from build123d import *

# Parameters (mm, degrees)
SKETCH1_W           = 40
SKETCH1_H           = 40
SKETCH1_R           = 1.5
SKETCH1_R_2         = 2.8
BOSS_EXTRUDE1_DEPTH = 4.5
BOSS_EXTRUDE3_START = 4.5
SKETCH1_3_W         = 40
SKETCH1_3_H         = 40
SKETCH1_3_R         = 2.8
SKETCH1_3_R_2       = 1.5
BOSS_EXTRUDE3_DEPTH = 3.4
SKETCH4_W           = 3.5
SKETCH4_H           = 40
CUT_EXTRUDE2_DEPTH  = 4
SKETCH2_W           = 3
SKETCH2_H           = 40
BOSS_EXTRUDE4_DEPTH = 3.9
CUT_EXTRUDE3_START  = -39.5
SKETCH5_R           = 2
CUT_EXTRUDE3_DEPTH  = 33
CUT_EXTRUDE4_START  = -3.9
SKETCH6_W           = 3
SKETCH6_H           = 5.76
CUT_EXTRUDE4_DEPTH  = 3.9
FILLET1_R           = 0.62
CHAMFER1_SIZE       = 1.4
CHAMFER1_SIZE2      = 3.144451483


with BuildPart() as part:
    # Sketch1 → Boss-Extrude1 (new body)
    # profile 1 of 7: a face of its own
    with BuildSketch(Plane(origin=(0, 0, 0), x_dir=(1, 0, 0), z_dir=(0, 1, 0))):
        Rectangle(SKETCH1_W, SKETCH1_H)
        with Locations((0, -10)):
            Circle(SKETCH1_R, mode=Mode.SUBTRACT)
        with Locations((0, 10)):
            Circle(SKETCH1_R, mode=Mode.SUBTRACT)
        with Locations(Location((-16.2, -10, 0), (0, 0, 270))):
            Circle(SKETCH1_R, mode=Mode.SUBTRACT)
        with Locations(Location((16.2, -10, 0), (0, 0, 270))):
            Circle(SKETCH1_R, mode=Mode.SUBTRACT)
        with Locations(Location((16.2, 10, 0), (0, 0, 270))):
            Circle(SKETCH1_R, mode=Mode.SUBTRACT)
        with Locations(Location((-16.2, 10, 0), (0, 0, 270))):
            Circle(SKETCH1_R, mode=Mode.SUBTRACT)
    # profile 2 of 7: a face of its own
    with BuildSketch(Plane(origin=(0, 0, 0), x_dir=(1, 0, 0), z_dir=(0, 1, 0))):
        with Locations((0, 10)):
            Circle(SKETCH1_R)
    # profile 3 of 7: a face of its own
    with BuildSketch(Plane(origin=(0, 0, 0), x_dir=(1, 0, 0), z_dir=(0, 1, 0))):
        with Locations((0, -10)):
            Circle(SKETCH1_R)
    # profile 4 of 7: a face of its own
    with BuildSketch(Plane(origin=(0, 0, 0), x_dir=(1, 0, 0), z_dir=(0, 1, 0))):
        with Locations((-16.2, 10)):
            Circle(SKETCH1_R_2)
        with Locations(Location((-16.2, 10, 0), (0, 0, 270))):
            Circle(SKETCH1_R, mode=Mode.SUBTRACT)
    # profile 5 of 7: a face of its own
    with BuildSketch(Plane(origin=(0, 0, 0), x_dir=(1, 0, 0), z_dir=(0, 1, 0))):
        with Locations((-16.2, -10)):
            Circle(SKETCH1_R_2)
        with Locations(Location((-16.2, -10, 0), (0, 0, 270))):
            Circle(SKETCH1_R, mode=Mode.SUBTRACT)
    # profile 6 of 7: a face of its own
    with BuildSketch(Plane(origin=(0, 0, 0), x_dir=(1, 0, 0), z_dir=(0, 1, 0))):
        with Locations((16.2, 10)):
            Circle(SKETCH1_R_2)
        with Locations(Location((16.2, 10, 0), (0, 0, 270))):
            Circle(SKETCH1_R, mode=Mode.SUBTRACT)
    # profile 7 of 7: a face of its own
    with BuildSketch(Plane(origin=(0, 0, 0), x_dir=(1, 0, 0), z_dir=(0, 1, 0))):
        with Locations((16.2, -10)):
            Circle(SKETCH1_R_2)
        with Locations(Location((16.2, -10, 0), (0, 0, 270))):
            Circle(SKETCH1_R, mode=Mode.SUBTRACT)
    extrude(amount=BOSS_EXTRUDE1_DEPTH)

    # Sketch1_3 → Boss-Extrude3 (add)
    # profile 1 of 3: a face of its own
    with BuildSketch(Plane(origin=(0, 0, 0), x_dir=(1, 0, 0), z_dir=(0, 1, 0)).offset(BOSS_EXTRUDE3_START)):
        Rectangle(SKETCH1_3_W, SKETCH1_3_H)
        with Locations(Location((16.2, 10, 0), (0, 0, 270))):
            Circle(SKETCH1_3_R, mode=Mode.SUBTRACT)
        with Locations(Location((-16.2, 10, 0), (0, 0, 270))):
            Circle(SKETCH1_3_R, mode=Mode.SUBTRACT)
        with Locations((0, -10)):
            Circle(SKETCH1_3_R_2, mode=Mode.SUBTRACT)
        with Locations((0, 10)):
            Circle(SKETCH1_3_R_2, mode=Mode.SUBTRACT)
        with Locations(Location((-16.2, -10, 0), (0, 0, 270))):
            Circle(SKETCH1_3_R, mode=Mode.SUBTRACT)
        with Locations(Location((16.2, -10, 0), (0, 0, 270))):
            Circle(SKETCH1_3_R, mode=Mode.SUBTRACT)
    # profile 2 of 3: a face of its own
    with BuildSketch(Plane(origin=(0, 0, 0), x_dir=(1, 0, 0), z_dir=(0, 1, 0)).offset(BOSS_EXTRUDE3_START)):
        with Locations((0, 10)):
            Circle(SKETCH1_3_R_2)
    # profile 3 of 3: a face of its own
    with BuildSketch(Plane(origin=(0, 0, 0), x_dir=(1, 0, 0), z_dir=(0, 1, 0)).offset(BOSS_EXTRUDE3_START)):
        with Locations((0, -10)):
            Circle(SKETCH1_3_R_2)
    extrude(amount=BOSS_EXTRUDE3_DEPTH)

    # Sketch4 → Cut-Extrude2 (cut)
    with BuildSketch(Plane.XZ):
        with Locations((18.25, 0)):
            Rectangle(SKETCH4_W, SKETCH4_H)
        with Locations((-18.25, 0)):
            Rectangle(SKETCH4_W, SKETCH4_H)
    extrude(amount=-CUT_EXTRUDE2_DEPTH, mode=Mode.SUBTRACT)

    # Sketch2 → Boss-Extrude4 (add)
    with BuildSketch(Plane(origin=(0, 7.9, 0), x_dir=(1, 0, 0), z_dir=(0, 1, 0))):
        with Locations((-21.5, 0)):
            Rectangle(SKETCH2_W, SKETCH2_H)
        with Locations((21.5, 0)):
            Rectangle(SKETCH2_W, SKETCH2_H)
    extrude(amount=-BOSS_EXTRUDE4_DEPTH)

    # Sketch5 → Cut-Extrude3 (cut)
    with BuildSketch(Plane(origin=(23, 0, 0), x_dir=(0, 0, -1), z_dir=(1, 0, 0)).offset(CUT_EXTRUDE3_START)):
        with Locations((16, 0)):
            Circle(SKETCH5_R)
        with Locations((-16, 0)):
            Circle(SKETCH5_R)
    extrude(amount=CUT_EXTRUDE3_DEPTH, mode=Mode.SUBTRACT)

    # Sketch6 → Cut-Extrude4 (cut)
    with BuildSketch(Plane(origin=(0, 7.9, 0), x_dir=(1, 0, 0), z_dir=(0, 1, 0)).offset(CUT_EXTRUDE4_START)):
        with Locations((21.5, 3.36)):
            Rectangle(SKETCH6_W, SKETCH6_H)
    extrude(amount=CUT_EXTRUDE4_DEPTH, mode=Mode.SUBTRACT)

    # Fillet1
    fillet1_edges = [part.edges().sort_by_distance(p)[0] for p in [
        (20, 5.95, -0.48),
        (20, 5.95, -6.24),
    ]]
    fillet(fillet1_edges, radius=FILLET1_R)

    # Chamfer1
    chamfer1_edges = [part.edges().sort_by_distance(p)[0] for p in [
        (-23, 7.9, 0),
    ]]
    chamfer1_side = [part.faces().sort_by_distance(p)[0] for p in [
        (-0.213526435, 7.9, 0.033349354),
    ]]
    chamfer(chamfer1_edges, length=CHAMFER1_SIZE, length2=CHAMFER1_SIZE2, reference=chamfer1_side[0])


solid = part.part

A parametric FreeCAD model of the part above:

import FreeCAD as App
import Part
import Sketcher

V = App.Vector
Q = App.Units.Quantity


def edges_at(feature, points):
    """Names of the edges that pass closest to the given points."""
    edges = feature.Shape.Edges
    near = lambda p: min(range(len(edges)), key=lambda i: edges[i].distToShape(Part.Vertex(*p))[0])
    return sorted({f"Edge{near(p) + 1}" for p in points})


def add_polygon(sketch, points):
    """Adds a closed chain of lines whose ends are joined by coincident constraints."""
    first, n = sketch.GeometryCount, len(points)
    for a, b in zip(points, points[1:] + points[:1]):
        sketch.addGeometry(Part.LineSegment(App.Vector(*a, 0), App.Vector(*b, 0)), False)
    for i in range(n):
        sketch.addConstraint(Sketcher.Constraint("Coincident", first + i, 2, first + (i + 1) % n, 1))

doc = App.newDocument("Part")
params = doc.addObject("Spreadsheet::Sheet", "Params")
for row, (alias, value) in enumerate([
    ("sketch1_diameter", "3 mm"),
    ("sketch1_width", "40 mm"),
    ("pad1_length", "4.5 mm"),
    ("sketch2_diameter", "5.6 mm"),
    ("sketch2_width", "40 mm"),
    ("pad2_length", "3.4 mm"),
    ("sketch3_height", "40 mm"),
    ("sketch3_width", "3.5 mm"),
    ("pocket1_length", "4 mm"),
    ("sketch4_width", "3 mm"),
    ("sketch4_height", "40 mm"),
    ("pad3_length", "3.9 mm"),
    ("sketch5_diameter", "4 mm"),
    ("pocket2_length", "33 mm"),
    ("sketch6_width", "3 mm"),
    ("sketch6_height", "5.76 mm"),
    ("pocket3_length", "3.9 mm"),
    ("fillet_radius", "0.62 mm"),
    ("chamfer_size", "1.4 mm"),
    ("chamfer_size2", "3.144451 mm"),
], start=1):
    params.set(f"A{row}", alias)
    params.set(f"B{row}", "=" + value)
    params.setAlias(f"B{row}", alias)

body = doc.addObject("PartDesign::Body", "Body")

# Sketch on XZ plane
sketch1 = body.newObject("Sketcher::SketchObject", "Sketch")
sketch1.AttachmentSupport = (doc.getObject("XZ_Plane"), [""])
sketch1.MapMode = "FlatFace"
add_polygon(sketch1, [(-20, -20), (-20, 20), (20, 20), (20, -20)])  # lines 0-3
sketch1.addGeometry(Part.Circle(V(-16.2, 10, 0), V(0, 0, 1), 1.5), False)  # 4
sketch1.addGeometry(Part.Circle(V(16.2, 10, 0), V(0, 0, 1), 1.5), False)  # 5
sketch1.addGeometry(Part.Circle(V(-16.2, -10, 0), V(0, 0, 1), 1.5), False)  # 6
sketch1.addGeometry(Part.Circle(V(16.2, -10, 0), V(0, 0, 1), 1.5), False)  # 7
sketch1.addConstraint([
    Sketcher.Constraint("Vertical", 0),
    Sketcher.Constraint("Horizontal", 1),
    Sketcher.Constraint("Vertical", 2),
    Sketcher.Constraint("Horizontal", 3),
    Sketcher.Constraint("Equal", 4, 5),
    Sketcher.Constraint("Equal", 5, 6),
    Sketcher.Constraint("Equal", 6, 7),
    Sketcher.Constraint("Symmetric", 5, 3, 6, 3, -1, 1),
    Sketcher.Constraint("Symmetric", 4, 3, 7, 3, -1, 1),
    Sketcher.Constraint("Symmetric", 0, 2, 2, 2, -1, 1),
    Sketcher.Constraint("Symmetric", 4, 3, 5, 3, -2),
    Sketcher.Constraint("Equal", 3, 0),
    Sketcher.Constraint("Diameter", 4, Q("3 mm")),
    Sketcher.Constraint("DistanceX", 1, 1, 1, 2, Q("40 mm")),
    Sketcher.Constraint("DistanceY", -1, 1, 4, 3, Q("10 mm")),
    Sketcher.Constraint("DistanceX", 4, 3, -1, 1, Q("16.2 mm")),
])
sketch1.setExpression("Constraints[16]", "Params.sketch1_diameter")
sketch1.setExpression("Constraints[17]", "Params.sketch1_width")
pad1 = body.newObject("PartDesign::Pad", "Pad")
pad1.Profile = sketch1
pad1.setExpression("Length", "Params.pad1_length")
pad1.Reversed = True

# Sketch on XZ plane
sketch2 = body.newObject("Sketcher::SketchObject", "Sketch001")
sketch2.AttachmentSupport = (doc.getObject("XZ_Plane"), [""])
sketch2.MapMode = "FlatFace"
sketch2.AttachmentOffset = App.Placement(V(0, 0, -4.5), App.Rotation())
add_polygon(sketch2, [(-20, -20), (-20, 20), (20, 20), (20, -20)])  # lines 0-3
sketch2.addGeometry(Part.Circle(V(-16.2, 10, 0), V(0, 0, 1), 2.8), False)  # 4
sketch2.addGeometry(Part.Circle(V(16.2, 10, 0), V(0, 0, 1), 2.8), False)  # 5
sketch2.addGeometry(Part.Circle(V(-16.2, -10, 0), V(0, 0, 1), 2.8), False)  # 6
sketch2.addGeometry(Part.Circle(V(16.2, -10, 0), V(0, 0, 1), 2.8), False)  # 7
sketch2.addConstraint([
    Sketcher.Constraint("Vertical", 0),
    Sketcher.Constraint("Horizontal", 1),
    Sketcher.Constraint("Vertical", 2),
    Sketcher.Constraint("Horizontal", 3),
    Sketcher.Constraint("Equal", 4, 5),
    Sketcher.Constraint("Equal", 5, 6),
    Sketcher.Constraint("Equal", 6, 7),
    Sketcher.Constraint("Symmetric", 5, 3, 6, 3, -1, 1),
    Sketcher.Constraint("Symmetric", 4, 3, 7, 3, -1, 1),
    Sketcher.Constraint("Symmetric", 0, 2, 2, 2, -1, 1),
    Sketcher.Constraint("Symmetric", 4, 3, 5, 3, -2),
    Sketcher.Constraint("Equal", 3, 0),
    Sketcher.Constraint("Diameter", 4, Q("5.6 mm")),
    Sketcher.Constraint("DistanceX", 1, 1, 1, 2, Q("40 mm")),
    Sketcher.Constraint("DistanceY", -1, 1, 4, 3, Q("10 mm")),
    Sketcher.Constraint("DistanceX", 4, 3, -1, 1, Q("16.2 mm")),
])
sketch2.setExpression("Constraints[16]", "Params.sketch2_diameter")
sketch2.setExpression("Constraints[17]", "Params.sketch2_width")
pad2 = body.newObject("PartDesign::Pad", "Pad001")
pad2.Profile = sketch2
pad2.setExpression("Length", "Params.pad2_length")
pad2.Reversed = True

# Sketch on XZ plane
sketch3 = body.newObject("Sketcher::SketchObject", "Sketch002")
sketch3.AttachmentSupport = (doc.getObject("XZ_Plane"), [""])
sketch3.MapMode = "FlatFace"
add_polygon(sketch3, [(16.5, 20), (16.5, -20), (20, -20), (20, 20)])  # lines 0-3
add_polygon(sketch3, [(-20, 20), (-20, -20), (-16.5, -20), (-16.5, 20)])  # lines 4-7
sketch3.addConstraint([
    Sketcher.Constraint("Vertical", 0),
    Sketcher.Constraint("Horizontal", 1),
    Sketcher.Constraint("Vertical", 2),
    Sketcher.Constraint("Horizontal", 3),
    Sketcher.Constraint("Vertical", 4),
    Sketcher.Constraint("Horizontal", 5),
    Sketcher.Constraint("Vertical", 6),
    Sketcher.Constraint("Horizontal", 7),
    Sketcher.Constraint("Symmetric", 2, 2, 4, 2, -1, 1),
    Sketcher.Constraint("Symmetric", 0, 2, 6, 2, -1, 1),
    Sketcher.Constraint("Horizontal", 1, 2, 4, 2),
    Sketcher.Constraint("DistanceY", 0, 2, 0, 1, Q("40 mm")),
    Sketcher.Constraint("DistanceX", 1, 1, 1, 2, Q("3.5 mm")),
    Sketcher.Constraint("DistanceX", -1, 1, 1, 2, Q("20 mm")),
])
sketch3.setExpression("Constraints[19]", "Params.sketch3_height")
sketch3.setExpression("Constraints[20]", "Params.sketch3_width")
pocket1 = body.newObject("PartDesign::Pocket", "Pocket")
pocket1.Profile = sketch3
pocket1.setExpression("Length", "Params.pocket1_length")

# Sketch on XZ plane
sketch4 = body.newObject("Sketcher::SketchObject", "Sketch003")
sketch4.AttachmentSupport = (doc.getObject("XZ_Plane"), [""])
sketch4.MapMode = "FlatFace"
sketch4.AttachmentOffset = App.Placement(V(0, 0, -7.9), App.Rotation())
add_polygon(sketch4, [(-23, -20), (-23, 20), (-20, 20), (-20, -20)])  # lines 0-3
add_polygon(sketch4, [(20, -20), (20, 20), (23, 20), (23, -20)])  # lines 4-7
sketch4.addConstraint([
    Sketcher.Constraint("Vertical", 0),
    Sketcher.Constraint("Horizontal", 1),
    Sketcher.Constraint("Vertical", 2),
    Sketcher.Constraint("Horizontal", 3),
    Sketcher.Constraint("Vertical", 4),
    Sketcher.Constraint("Horizontal", 5),
    Sketcher.Constraint("Vertical", 6),
    Sketcher.Constraint("Horizontal", 7),
    Sketcher.Constraint("Symmetric", 2, 2, 4, 2, -1, 1),
    Sketcher.Constraint("Symmetric", 0, 2, 6, 2, -1, 1),
    Sketcher.Constraint("Horizontal", 1, 2, 4, 2),
    Sketcher.Constraint("DistanceX", 1, 1, 1, 2, Q("3 mm")),
    Sketcher.Constraint("DistanceY", 0, 1, 0, 2, Q("40 mm")),
    Sketcher.Constraint("DistanceX", 0, 2, -1, 1, Q("23 mm")),
])
sketch4.setExpression("Constraints[19]", "Params.sketch4_width")
sketch4.setExpression("Constraints[20]", "Params.sketch4_height")
pad3 = body.newObject("PartDesign::Pad", "Pad002")
pad3.Profile = sketch4
pad3.setExpression("Length", "Params.pad3_length")

# Sketch on YZ plane
sketch5 = body.newObject("Sketcher::SketchObject", "Sketch004")
sketch5.AttachmentSupport = (doc.getObject("YZ_Plane"), [""])
sketch5.MapMode = "FlatFace"
sketch5.AttachmentOffset = App.Placement(V(0, 0, -16.5), App.Rotation())
sketch5.addGeometry([
    Part.Circle(V(0, -16, 0), V(0, 0, 1), 2),
    Part.Circle(V(0, 16, 0), V(0, 0, 1), 2),
], False)
sketch5.addConstraint([
    Sketcher.Constraint("Equal", 0, 1),
    Sketcher.Constraint("Symmetric", 0, 3, 1, 3, -1, 1),
    Sketcher.Constraint("PointOnObject", 0, 3, -2),
    Sketcher.Constraint("Diameter", 0, Q("4 mm")),
    Sketcher.Constraint("DistanceY", 0, 3, -1, 1, Q("16 mm")),
])
sketch5.setExpression("Constraints[3]", "Params.sketch5_diameter")
pocket2 = body.newObject("PartDesign::Pocket", "Pocket001")
pocket2.Profile = sketch5
pocket2.setExpression("Length", "Params.pocket2_length")
pocket2.Reversed = True

# Sketch on XZ plane
sketch6 = body.newObject("Sketcher::SketchObject", "Sketch005")
sketch6.AttachmentSupport = (doc.getObject("XZ_Plane"), [""])
sketch6.MapMode = "FlatFace"
sketch6.AttachmentOffset = App.Placement(V(0, 0, -4), App.Rotation())
add_polygon(sketch6, [(20, -6.24), (20, -0.48), (23, -0.48), (23, -6.24)])  # lines 0-3
sketch6.addConstraint([
    Sketcher.Constraint("Vertical", 0),
    Sketcher.Constraint("Horizontal", 1),
    Sketcher.Constraint("Vertical", 2),
    Sketcher.Constraint("Horizontal", 3),
    Sketcher.Constraint("DistanceX", 1, 1, 1, 2, Q("3 mm")),
    Sketcher.Constraint("DistanceX", -1, 1, 0, 2, Q("20 mm")),
    Sketcher.Constraint("DistanceY", 0, 1, 0, 2, Q("5.76 mm")),
    Sketcher.Constraint("DistanceY", 0, 2, -1, 1, Q("0.48 mm")),
])
sketch6.setExpression("Constraints[8]", "Params.sketch6_width")
sketch6.setExpression("Constraints[10]", "Params.sketch6_height")
pocket3 = body.newObject("PartDesign::Pocket", "Pocket002")
pocket3.Profile = sketch6
pocket3.setExpression("Length", "Params.pocket3_length")
doc.recompute()

fillet = body.newObject("PartDesign::Fillet", "Fillet")
fillet.Base = (pocket3, edges_at(pocket3, [(20, 5.95, -0.48), (20, 5.95, -6.24)]))
fillet.setExpression("Radius", "Params.fillet_radius")
doc.recompute()

chamfer = body.newObject("PartDesign::Chamfer", "Chamfer")
chamfer.Base = (fillet, edges_at(fillet, [(-23, 7.9, 0)]))
chamfer.ChamferType = "Two distances"
chamfer.setExpression("Size", "Params.chamfer_size")
chamfer.setExpression("Size2", "Params.chamfer_size2")

doc.recompute()
